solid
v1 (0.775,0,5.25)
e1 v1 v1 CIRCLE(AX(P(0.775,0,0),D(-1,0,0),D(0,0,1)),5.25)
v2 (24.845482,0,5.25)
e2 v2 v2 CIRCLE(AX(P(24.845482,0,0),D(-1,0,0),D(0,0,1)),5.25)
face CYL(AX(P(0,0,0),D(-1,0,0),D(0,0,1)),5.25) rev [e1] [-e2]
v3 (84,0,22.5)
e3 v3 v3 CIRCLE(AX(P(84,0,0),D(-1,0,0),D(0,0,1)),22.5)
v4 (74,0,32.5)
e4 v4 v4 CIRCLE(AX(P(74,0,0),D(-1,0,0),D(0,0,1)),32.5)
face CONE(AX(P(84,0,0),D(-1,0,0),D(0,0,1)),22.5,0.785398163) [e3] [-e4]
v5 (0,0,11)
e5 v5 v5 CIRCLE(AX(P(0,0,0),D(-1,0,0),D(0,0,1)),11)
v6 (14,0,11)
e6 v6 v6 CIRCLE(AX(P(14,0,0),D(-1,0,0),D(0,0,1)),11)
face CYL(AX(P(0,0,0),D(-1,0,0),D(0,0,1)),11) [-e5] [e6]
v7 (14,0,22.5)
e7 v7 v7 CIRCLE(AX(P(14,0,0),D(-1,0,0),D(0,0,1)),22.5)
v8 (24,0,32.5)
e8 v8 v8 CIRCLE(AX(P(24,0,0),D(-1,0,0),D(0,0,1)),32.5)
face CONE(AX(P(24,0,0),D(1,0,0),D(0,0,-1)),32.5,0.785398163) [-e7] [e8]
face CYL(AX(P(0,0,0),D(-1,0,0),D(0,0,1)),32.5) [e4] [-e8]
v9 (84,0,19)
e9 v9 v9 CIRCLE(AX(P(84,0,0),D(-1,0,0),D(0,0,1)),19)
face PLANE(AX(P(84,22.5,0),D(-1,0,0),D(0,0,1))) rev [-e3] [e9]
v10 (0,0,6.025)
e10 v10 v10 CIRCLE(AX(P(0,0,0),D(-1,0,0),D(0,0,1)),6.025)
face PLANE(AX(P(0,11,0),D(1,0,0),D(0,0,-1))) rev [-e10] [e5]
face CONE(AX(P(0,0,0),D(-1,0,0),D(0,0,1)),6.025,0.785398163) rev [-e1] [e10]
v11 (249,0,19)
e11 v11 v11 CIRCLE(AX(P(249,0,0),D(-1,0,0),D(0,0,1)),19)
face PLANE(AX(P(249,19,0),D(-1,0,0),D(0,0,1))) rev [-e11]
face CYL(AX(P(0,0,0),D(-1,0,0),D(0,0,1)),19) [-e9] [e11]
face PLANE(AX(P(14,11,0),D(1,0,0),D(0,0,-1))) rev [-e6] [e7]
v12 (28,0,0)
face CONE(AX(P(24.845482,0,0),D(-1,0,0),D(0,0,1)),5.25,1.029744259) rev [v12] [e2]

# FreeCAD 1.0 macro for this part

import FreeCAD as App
import Part
import Sketcher


def add_polygon(sketch, points):
    """Adds a closed chain of lines whose ends are joined by coincident constraints."""
    first, n = sketch.GeometryCount, len(points)
    for a, b in zip(points, points[1:] + points[:1]):
        sketch.addGeometry(Part.LineSegment(App.Vector(*a, 0), App.Vector(*b, 0)), False)
    for i in range(n):
        sketch.addConstraint(Sketcher.Constraint("Coincident", first + i, 2, first + (i + 1) % n, 1))

doc = App.newDocument("Part")
body = doc.addObject("PartDesign::Body", "Body")

sketch1 = body.newObject("Sketcher::SketchObject", "Sketch")
sketch1.AttachmentSupport = (doc.getObject("XY_Plane"), [""])
sketch1.MapMode = "FlatFace"
add_polygon(sketch1, [(14, 11), (0, 11), (0, 0), (249, 0), (249, 19), (84, 19), (84, 22.5), (74, 32.5), (24, 32.5), (14, 22.5)])
sketch1.addConstraint([
    Sketcher.Constraint("Horizontal", 0),
    Sketcher.Constraint("Vertical", 1),
    Sketcher.Constraint("Horizontal", 2),
    Sketcher.Constraint("Vertical", 3),
    Sketcher.Constraint("Horizontal", 4),
    Sketcher.Constraint("Vertical", 5),
    Sketcher.Constraint("Horizontal", 7),
    Sketcher.Constraint("Vertical", 9),
    Sketcher.Constraint("Coincident", 1, 2, -1, 1),
    Sketcher.Constraint("Perpendicular", 6, 8),
    Sketcher.Constraint("Horizontal", 5, 2, 8, 2),
    Sketcher.Constraint("Equal", 6, 8),
    Sketcher.Constraint("DistanceX", 0, 2, 0, 1, 14.0),
    Sketcher.Constraint("DistanceX", 2, 1, 2, 2, 249.0),
    Sketcher.Constraint("DistanceX", 4, 2, 4, 1, 165.0),
    Sketcher.Constraint("DistanceX", 7, 2, 7, 1, 50.0),
    Sketcher.Constraint("DistanceY", 1, 2, 1, 1, 11.0),
    Sketcher.Constraint("DistanceY", 3, 1, 3, 2, 19.0),
    Sketcher.Constraint("DistanceY", 5, 1, 5, 2, 3.5),
])
revolution = body.newObject("PartDesign::Revolution", "Revolution")
revolution.Profile = sketch1
revolution.ReferenceAxis = (sketch1, ["H_Axis"])
revolution.Angle = 360

sketch2 = body.newObject("Sketcher::SketchObject", "Sketch001")
sketch2.AttachmentSupport = (doc.getObject("YZ_Plane"), [""])
sketch2.MapMode = "FlatFace"
sketch2.addGeometry(Part.Circle(App.Vector(0, 0, 0), App.Vector(0, 0, 1), 5), False)
sketch2.addConstraint([
    Sketcher.Constraint("Coincident", 0, 3, -1, 1),
    Sketcher.Constraint("Diameter", 0, 10.5),
])
doc.recompute()
hole = body.newObject("PartDesign::Hole", "Hole")
hole.Profile = sketch2
hole.ThreadType = "None"
hole.Diameter = 10.5
hole.DepthType = "Dimension"
hole.Depth = 24.845482
hole.DrillPoint = "Angled"
hole.DrillPointAngle = 118
hole.HoleCutType = "Countersink"
hole.HoleCutDiameter = 12.05
hole.HoleCutCountersinkAngle = 90
hole.Reversed = True

doc.recompute()
